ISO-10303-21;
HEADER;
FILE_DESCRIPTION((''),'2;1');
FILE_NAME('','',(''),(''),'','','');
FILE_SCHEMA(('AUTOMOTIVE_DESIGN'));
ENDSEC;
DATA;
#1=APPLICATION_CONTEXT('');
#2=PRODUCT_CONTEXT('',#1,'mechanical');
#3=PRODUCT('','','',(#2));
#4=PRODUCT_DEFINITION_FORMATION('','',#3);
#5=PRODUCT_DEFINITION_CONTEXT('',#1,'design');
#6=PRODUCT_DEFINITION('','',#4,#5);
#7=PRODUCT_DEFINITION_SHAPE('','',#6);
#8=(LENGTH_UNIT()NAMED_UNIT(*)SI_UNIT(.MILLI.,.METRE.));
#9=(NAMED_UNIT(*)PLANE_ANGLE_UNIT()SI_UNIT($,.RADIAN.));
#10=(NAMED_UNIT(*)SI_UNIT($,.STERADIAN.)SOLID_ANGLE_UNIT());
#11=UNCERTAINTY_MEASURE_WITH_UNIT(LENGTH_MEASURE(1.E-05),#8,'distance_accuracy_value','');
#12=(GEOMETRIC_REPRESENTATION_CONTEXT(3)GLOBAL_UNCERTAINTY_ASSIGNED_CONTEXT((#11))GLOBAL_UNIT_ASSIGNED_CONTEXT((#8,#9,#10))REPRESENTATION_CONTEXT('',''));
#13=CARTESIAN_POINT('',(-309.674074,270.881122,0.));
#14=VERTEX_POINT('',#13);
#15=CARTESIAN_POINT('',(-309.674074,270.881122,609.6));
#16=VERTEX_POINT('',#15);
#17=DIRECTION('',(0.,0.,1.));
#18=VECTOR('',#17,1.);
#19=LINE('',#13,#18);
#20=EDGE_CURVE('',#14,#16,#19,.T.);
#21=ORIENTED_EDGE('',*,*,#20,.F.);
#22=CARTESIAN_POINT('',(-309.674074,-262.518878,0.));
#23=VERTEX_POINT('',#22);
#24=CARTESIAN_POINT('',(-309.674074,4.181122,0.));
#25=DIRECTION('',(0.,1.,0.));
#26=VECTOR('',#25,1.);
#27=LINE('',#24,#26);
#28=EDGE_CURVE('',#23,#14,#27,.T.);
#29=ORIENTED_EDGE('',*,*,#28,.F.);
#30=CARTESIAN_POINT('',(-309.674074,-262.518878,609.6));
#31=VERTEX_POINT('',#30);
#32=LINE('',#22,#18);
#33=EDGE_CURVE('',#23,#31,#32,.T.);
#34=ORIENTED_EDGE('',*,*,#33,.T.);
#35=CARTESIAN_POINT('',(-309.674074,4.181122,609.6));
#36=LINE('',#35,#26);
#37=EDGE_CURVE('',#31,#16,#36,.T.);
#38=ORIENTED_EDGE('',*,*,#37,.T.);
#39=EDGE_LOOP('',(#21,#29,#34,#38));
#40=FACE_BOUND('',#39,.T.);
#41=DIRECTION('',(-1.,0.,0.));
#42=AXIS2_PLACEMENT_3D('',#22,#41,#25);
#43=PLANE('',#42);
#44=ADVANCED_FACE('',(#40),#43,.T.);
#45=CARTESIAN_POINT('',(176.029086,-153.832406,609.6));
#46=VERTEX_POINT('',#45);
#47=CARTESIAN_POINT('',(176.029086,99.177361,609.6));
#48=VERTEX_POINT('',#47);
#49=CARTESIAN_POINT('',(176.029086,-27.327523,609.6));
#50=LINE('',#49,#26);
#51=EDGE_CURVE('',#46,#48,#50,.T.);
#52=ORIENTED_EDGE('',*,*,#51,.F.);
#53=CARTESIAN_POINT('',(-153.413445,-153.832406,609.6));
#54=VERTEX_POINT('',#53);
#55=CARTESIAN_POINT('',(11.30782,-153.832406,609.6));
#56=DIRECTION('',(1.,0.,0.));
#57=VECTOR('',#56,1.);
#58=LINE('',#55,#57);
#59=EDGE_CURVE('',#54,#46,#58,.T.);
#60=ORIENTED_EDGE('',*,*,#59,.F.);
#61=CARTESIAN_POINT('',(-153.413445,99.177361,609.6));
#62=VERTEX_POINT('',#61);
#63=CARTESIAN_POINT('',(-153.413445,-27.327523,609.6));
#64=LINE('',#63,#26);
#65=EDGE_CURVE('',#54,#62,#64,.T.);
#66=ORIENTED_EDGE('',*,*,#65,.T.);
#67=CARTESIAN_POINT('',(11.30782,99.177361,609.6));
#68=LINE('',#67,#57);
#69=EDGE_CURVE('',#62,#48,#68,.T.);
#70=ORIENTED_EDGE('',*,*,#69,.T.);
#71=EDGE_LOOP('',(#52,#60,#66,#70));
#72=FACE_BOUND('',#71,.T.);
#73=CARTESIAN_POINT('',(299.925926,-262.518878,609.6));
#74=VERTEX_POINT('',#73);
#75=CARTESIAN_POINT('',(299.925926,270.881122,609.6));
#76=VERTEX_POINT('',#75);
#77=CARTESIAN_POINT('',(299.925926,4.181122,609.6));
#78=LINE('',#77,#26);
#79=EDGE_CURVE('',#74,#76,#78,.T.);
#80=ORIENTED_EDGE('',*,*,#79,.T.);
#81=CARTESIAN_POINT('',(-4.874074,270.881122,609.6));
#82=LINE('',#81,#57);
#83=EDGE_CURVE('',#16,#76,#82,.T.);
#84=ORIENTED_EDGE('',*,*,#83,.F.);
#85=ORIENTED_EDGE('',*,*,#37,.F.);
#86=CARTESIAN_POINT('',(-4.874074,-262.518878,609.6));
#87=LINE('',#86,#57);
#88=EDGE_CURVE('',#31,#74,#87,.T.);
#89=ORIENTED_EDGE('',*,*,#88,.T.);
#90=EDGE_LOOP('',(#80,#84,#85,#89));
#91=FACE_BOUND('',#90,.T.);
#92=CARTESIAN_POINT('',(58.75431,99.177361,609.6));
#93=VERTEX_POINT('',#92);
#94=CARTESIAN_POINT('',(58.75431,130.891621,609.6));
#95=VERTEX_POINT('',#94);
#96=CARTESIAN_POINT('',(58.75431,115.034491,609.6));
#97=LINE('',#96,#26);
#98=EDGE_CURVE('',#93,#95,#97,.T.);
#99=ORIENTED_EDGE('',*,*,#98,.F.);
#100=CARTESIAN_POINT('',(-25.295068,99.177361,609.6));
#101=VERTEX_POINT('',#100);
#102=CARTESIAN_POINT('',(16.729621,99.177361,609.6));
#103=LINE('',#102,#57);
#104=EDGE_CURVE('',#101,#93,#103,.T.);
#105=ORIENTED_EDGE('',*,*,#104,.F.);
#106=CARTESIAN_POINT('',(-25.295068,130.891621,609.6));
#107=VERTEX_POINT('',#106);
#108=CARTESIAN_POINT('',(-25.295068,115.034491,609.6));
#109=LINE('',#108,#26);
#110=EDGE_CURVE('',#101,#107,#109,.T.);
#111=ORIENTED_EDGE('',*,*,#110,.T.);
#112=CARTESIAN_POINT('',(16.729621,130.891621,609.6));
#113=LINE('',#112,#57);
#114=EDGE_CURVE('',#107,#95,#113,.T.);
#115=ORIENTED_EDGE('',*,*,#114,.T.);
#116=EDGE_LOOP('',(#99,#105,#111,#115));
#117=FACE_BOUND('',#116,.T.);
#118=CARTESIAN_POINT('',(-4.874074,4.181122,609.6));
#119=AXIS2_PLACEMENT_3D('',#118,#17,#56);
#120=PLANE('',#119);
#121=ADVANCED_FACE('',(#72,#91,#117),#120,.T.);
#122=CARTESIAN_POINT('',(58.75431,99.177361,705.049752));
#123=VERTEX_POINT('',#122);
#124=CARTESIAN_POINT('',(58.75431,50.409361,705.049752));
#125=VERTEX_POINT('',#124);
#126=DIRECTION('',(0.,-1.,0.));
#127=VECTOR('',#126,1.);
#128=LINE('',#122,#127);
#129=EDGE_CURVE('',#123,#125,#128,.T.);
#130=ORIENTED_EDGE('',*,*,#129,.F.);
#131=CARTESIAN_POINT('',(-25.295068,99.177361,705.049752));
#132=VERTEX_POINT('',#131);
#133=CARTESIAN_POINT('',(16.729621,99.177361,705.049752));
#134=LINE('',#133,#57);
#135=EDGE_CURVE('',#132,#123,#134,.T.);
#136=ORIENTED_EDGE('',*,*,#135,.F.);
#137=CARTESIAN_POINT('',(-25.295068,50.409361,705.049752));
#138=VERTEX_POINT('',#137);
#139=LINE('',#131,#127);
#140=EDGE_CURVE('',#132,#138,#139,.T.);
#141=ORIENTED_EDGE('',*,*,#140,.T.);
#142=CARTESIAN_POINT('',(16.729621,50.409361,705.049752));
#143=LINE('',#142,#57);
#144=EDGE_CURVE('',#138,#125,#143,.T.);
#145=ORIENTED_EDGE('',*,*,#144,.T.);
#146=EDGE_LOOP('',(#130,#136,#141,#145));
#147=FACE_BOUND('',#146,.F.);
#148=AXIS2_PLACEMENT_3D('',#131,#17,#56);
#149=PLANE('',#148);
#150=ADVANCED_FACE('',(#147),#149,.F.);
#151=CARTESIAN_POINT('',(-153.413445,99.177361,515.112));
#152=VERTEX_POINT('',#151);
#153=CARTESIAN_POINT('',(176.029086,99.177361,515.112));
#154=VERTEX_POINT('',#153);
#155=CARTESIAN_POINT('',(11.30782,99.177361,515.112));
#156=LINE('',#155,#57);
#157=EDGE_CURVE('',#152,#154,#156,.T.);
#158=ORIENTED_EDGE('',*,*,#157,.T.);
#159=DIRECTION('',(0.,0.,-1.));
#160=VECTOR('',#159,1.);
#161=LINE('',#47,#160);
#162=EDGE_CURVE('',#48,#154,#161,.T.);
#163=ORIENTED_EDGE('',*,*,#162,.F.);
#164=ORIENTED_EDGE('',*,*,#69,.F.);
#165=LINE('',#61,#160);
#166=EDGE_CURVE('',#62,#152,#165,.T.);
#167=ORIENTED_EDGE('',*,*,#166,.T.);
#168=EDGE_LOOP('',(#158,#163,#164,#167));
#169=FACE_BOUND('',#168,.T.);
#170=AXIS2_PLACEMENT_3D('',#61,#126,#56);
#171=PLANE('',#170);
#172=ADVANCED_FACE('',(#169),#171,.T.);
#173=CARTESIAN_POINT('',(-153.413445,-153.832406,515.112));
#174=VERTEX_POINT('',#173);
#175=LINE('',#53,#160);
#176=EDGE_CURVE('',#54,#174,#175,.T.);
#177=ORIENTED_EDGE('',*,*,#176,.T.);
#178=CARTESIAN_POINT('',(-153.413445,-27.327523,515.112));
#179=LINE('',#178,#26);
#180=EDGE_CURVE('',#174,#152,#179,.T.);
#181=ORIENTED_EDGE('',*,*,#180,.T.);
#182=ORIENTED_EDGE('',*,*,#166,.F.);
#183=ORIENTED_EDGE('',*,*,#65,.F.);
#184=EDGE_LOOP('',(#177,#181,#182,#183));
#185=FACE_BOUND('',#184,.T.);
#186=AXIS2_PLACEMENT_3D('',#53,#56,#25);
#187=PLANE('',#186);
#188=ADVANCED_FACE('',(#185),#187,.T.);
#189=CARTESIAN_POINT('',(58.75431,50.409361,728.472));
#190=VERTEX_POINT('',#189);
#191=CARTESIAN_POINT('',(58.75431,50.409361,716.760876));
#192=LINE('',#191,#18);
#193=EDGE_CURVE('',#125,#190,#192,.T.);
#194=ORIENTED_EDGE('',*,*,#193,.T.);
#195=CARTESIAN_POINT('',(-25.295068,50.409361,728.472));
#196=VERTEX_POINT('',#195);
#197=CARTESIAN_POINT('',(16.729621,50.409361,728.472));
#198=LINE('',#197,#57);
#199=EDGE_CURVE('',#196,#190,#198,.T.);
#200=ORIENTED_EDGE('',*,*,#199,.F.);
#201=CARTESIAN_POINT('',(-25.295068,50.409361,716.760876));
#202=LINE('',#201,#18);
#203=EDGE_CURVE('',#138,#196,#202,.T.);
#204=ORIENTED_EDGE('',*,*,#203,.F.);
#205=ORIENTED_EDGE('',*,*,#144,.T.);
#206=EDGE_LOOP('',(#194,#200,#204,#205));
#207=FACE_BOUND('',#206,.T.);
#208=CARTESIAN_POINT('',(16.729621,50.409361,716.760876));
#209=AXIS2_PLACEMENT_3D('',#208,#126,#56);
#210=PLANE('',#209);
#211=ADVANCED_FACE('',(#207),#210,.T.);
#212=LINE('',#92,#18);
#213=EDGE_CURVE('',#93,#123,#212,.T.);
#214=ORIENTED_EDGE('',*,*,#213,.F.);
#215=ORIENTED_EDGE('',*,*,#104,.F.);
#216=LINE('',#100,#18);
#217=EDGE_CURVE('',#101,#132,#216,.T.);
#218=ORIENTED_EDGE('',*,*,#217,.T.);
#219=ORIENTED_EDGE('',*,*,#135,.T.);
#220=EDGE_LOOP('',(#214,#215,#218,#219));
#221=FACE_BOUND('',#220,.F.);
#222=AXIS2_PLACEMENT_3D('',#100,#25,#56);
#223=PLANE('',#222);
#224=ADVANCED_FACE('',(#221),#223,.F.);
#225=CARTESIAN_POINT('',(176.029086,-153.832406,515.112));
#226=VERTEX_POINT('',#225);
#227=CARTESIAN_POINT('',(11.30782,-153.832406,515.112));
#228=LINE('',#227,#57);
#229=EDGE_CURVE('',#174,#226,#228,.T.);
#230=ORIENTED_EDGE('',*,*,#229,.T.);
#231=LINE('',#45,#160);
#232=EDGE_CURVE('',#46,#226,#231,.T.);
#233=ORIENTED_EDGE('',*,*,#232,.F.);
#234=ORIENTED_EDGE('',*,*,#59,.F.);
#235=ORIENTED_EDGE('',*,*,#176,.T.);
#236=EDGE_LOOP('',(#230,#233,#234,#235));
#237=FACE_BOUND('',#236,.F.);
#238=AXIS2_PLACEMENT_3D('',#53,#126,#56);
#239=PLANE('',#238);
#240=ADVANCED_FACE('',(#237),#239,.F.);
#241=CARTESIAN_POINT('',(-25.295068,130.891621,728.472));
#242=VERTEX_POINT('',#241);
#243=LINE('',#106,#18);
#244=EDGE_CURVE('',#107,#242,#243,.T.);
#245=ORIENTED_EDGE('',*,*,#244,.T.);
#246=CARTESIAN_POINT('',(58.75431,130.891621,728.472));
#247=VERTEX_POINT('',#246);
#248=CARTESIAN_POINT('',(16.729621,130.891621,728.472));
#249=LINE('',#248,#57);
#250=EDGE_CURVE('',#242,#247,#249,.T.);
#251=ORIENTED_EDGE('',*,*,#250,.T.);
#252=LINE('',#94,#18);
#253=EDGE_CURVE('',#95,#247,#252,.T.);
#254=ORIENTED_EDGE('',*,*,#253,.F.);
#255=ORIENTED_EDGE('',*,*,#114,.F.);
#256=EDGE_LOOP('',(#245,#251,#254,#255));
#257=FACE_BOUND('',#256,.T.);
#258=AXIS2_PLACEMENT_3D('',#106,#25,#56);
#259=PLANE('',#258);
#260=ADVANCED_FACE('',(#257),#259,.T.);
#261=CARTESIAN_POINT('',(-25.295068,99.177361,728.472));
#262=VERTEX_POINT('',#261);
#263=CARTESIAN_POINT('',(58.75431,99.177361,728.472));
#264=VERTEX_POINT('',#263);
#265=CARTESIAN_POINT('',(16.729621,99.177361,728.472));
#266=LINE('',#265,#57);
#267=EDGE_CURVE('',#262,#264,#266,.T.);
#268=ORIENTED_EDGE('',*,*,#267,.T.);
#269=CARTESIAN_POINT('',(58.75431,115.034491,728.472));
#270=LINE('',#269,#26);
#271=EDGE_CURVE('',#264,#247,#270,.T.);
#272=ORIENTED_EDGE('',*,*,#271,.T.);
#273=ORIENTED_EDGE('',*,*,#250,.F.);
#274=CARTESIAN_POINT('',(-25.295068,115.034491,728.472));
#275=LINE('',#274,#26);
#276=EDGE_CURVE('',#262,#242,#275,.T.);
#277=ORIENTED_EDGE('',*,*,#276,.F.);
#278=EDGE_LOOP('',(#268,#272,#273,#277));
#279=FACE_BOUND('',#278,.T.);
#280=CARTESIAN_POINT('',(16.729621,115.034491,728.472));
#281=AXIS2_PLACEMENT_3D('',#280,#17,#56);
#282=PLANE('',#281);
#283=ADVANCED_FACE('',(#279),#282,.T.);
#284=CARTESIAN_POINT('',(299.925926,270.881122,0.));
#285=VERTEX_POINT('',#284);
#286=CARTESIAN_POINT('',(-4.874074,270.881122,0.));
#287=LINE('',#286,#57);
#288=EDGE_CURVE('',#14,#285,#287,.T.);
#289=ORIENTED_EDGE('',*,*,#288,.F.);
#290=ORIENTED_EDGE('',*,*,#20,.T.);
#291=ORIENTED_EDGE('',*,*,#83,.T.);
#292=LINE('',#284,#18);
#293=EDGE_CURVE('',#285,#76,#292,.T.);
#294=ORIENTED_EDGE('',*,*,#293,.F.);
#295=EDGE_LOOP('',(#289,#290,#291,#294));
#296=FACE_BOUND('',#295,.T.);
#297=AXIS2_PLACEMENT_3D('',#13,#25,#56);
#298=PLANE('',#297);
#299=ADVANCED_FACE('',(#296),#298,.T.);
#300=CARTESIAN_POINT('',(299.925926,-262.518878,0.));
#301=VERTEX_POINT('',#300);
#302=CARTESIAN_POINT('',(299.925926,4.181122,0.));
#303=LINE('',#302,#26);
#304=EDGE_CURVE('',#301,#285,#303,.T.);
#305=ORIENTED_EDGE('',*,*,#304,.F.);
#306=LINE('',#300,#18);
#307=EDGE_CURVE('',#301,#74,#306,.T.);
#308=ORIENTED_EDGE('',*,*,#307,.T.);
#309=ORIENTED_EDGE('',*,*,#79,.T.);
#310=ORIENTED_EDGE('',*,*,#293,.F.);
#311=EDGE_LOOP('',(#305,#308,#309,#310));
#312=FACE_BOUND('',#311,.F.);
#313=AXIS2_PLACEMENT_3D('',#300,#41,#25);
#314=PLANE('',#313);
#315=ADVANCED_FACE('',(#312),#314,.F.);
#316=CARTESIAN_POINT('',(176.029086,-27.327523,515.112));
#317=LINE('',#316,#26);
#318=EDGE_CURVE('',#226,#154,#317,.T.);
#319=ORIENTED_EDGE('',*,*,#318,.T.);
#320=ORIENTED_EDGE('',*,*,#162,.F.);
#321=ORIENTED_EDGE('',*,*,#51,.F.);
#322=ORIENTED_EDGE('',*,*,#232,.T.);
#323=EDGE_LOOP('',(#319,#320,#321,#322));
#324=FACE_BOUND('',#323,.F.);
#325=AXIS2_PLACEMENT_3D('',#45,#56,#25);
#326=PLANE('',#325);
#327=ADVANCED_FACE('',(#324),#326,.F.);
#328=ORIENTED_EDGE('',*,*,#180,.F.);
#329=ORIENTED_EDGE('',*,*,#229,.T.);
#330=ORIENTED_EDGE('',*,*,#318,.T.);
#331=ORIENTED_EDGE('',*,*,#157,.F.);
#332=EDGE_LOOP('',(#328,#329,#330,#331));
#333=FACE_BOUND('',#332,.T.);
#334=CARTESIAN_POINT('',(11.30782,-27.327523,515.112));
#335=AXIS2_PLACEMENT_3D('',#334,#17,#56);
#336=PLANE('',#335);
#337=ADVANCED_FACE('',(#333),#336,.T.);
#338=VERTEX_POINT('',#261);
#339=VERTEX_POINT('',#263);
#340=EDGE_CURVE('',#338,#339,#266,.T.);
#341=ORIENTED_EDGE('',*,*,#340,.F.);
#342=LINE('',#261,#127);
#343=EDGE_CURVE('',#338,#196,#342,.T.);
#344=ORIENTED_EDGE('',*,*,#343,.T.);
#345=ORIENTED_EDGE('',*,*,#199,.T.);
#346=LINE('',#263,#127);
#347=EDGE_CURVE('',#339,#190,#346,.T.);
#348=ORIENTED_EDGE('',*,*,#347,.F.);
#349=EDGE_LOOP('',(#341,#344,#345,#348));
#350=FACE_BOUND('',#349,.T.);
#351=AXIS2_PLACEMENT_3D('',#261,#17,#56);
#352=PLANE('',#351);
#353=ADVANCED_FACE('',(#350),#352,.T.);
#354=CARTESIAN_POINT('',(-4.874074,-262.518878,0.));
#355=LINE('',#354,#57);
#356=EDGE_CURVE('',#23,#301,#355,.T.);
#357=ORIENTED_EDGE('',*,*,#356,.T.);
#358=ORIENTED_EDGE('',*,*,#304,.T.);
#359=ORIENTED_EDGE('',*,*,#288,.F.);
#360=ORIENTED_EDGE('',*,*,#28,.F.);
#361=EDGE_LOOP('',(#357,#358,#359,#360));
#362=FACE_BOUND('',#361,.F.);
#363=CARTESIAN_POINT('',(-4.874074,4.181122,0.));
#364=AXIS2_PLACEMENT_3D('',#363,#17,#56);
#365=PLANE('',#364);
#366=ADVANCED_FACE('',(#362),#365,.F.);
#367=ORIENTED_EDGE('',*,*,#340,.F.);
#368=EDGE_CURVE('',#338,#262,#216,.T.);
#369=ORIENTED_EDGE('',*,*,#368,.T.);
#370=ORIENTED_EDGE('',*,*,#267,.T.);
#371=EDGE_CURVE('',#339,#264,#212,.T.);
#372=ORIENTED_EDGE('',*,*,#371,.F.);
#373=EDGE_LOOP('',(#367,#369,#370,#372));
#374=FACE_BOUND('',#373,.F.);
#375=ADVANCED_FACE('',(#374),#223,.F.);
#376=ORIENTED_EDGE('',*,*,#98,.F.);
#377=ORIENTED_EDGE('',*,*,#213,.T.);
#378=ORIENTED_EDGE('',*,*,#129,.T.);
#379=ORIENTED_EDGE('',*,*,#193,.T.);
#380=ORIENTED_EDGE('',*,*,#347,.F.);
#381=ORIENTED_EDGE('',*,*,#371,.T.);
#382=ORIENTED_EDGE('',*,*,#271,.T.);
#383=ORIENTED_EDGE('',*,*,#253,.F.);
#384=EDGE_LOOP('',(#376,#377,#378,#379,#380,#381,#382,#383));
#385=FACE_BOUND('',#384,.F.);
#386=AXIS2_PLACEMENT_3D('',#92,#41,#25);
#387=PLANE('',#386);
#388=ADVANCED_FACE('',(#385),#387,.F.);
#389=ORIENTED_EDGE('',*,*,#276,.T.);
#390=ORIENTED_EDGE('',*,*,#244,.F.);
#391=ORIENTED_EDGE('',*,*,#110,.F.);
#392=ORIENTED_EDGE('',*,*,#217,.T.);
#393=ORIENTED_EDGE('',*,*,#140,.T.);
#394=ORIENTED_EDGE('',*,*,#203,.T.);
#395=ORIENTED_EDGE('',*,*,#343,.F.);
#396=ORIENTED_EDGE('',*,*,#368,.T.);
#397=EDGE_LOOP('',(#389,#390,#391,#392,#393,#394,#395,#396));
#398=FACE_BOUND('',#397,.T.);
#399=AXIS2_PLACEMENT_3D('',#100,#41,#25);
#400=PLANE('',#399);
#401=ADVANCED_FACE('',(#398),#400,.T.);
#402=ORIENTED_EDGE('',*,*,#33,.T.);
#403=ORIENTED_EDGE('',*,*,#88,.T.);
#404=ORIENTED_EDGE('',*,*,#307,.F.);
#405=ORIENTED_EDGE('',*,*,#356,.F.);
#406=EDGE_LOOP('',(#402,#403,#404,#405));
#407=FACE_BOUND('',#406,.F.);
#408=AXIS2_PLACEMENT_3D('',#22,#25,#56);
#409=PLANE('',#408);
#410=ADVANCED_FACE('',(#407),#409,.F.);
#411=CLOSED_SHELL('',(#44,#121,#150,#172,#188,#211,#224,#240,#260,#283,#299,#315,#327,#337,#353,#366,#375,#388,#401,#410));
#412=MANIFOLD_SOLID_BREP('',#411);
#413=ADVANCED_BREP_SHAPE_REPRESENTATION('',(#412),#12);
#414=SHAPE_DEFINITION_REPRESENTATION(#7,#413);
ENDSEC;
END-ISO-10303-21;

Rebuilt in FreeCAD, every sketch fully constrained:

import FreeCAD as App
import Part
import Sketcher
from FreeCAD import Vector
Q = App.Units.Quantity

doc = App.newDocument("Part")
params = doc.addObject("Spreadsheet::Sheet", "Params")
for row, (alias, value) in enumerate([
    ("sketch1_width", "24 in"),
    ("sketch1_height", "21 in"),
    ("pad1_length", "24 in"),
    ("pocket1_length", "3.72 in"),
    ("pad2_length", "4.68 in"),
    ("pad3_length", "1.92 in"),
], start=1):
    params.set(f"A{row}", alias)
    params.set(f"B{row}", "=" + value)
    params.setAlias(f"B{row}", alias)

body = doc.addObject("PartDesign::Body", "Body")

sketch1 = body.newObject("Sketcher::SketchObject", "Sketch")
sketch1.AttachmentSupport = (doc.getObject("XY_Plane"), [""])
sketch1.MapMode = "FlatFace"
sketch1.addGeometry(Part.LineSegment(Vector(-309.674074, 270.881122, 0), Vector(-309.674074, -262.518878, 0)), False)
sketch1.addGeometry(Part.LineSegment(Vector(-309.674074, -262.518878, 0), Vector(299.925926, -262.518878, 0)), False)
sketch1.addGeometry(Part.LineSegment(Vector(299.925926, -262.518878, 0), Vector(299.925926, 270.881122, 0)), False)
sketch1.addGeometry(Part.LineSegment(Vector(299.925926, 270.881122, 0), Vector(-309.674074, 270.881122, 0)), False)
sketch1.addConstraint(Sketcher.Constraint("Coincident", 0, 2, 1, 1))
sketch1.addConstraint(Sketcher.Constraint("Coincident", 1, 2, 2, 1))
sketch1.addConstraint(Sketcher.Constraint("Coincident", 2, 2, 3, 1))
sketch1.addConstraint(Sketcher.Constraint("Coincident", 3, 2, 0, 1))
sketch1.addConstraint(Sketcher.Constraint("Vertical", 0))
sketch1.addConstraint(Sketcher.Constraint("Horizontal", 1))
sketch1.addConstraint(Sketcher.Constraint("Vertical", 2))
sketch1.addConstraint(Sketcher.Constraint("Horizontal", 3))
sketch1.addConstraint(Sketcher.Constraint("DistanceX", 1, 1, 1, 2, Q("24 in")))
sketch1.addConstraint(Sketcher.Constraint("DistanceY", 0, 2, 0, 1, Q("21 in")))
sketch1.addConstraint(Sketcher.Constraint("DistanceY", -1, 1, 2, 2, 270.881122))
sketch1.addConstraint(Sketcher.Constraint("DistanceX", 0, 2, -1, 1, 309.674074))
sketch1.setExpression("Constraints[8]", "Params.sketch1_width")
sketch1.setExpression("Constraints[9]", "Params.sketch1_height")
pad1 = body.newObject("PartDesign::Pad", "Pad")
pad1.Profile = sketch1
pad1.setExpression("Length", "Params.pad1_length")

sketch2 = body.newObject("Sketcher::SketchObject", "Sketch001")
sketch2.AttachmentSupport = (doc.getObject("XY_Plane"), [""])
sketch2.MapMode = "FlatFace"
sketch2.AttachmentOffset = App.Placement(Vector(0, 0, 24 * 25.4), App.Rotation())
sketch2.addGeometry(Part.LineSegment(Vector(-153.413445, 99.177361, 0), Vector(-153.413445, -153.832406, 0)), False)
sketch2.addGeometry(Part.LineSegment(Vector(-153.413445, -153.832406, 0), Vector(176.029086, -153.832406, 0)), False)
sketch2.addGeometry(Part.LineSegment(Vector(176.029086, -153.832406, 0), Vector(176.029086, 99.177361, 0)), False)
sketch2.addGeometry(Part.LineSegment(Vector(176.029086, 99.177361, 0), Vector(-153.413445, 99.177361, 0)), False)
sketch2.addConstraint(Sketcher.Constraint("Coincident", 0, 2, 1, 1))
sketch2.addConstraint(Sketcher.Constraint("Coincident", 1, 2, 2, 1))
sketch2.addConstraint(Sketcher.Constraint("Coincident", 2, 2, 3, 1))
sketch2.addConstraint(Sketcher.Constraint("Coincident", 3, 2, 0, 1))
sketch2.addConstraint(Sketcher.Constraint("Vertical", 0))
sketch2.addConstraint(Sketcher.Constraint("Horizontal", 1))
sketch2.addConstraint(Sketcher.Constraint("Vertical", 2))
sketch2.addConstraint(Sketcher.Constraint("Horizontal", 3))
sketch2.addConstraint(Sketcher.Constraint("DistanceX", 1, 1, 1, 2, 329.442531))
sketch2.addConstraint(Sketcher.Constraint("DistanceY", 0, 2, 0, 1, 253.009767))
sketch2.addConstraint(Sketcher.Constraint("DistanceY", -1, 1, 2, 2, 99.177361))
sketch2.addConstraint(Sketcher.Constraint("DistanceX", 0, 2, -1, 1, 153.413445))
pocket1 = body.newObject("PartDesign::Pocket", "Pocket")
pocket1.Profile = sketch2
pocket1.setExpression("Length", "Params.pocket1_length")

sketch3 = body.newObject("Sketcher::SketchObject", "Sketch002")
sketch3.AttachmentSupport = (doc.getObject("XY_Plane"), [""])
sketch3.MapMode = "FlatFace"
sketch3.AttachmentOffset = App.Placement(Vector(0, 0, 24 * 25.4), App.Rotation())
sketch3.addGeometry(Part.LineSegment(Vector(-25.295068, 130.891621, 0), Vector(-25.295068, 99.177361, 0)), False)
sketch3.addGeometry(Part.LineSegment(Vector(-25.295068, 99.177361, 0), Vector(58.75431, 99.177361, 0)), False)
sketch3.addGeometry(Part.LineSegment(Vector(58.75431, 99.177361, 0), Vector(58.75431, 130.891621, 0)), False)
sketch3.addGeometry(Part.LineSegment(Vector(58.75431, 130.891621, 0), Vector(-25.295068, 130.891621, 0)), False)
sketch3.addConstraint(Sketcher.Constraint("Coincident", 0, 2, 1, 1))
sketch3.addConstraint(Sketcher.Constraint("Coincident", 1, 2, 2, 1))
sketch3.addConstraint(Sketcher.Constraint("Coincident", 2, 2, 3, 1))
sketch3.addConstraint(Sketcher.Constraint("Coincident", 3, 2, 0, 1))
sketch3.addConstraint(Sketcher.Constraint("Vertical", 0))
sketch3.addConstraint(Sketcher.Constraint("Horizontal", 1))
sketch3.addConstraint(Sketcher.Constraint("Vertical", 2))
sketch3.addConstraint(Sketcher.Constraint("Horizontal", 3))
sketch3.addConstraint(Sketcher.Constraint("DistanceY", 0, 2, 0, 1, 31.71426))
sketch3.addConstraint(Sketcher.Constraint("DistanceX", 1, 1, 1, 2, 84.049378))
sketch3.addConstraint(Sketcher.Constraint("DistanceX", 0, 2, -1, 1, 25.295068))
sketch3.addConstraint(Sketcher.Constraint("DistanceY", -1, 1, 0, 2, 99.177361))
pad2 = body.newObject("PartDesign::Pad", "Pad001")
pad2.Profile = sketch3
pad2.setExpression("Length", "Params.pad2_length")

sketch4 = body.newObject("Sketcher::SketchObject", "Sketch003")
sketch4.AttachmentSupport = (doc.getObject("XZ_Plane"), [""])
sketch4.MapMode = "FlatFace"
sketch4.AttachmentOffset = App.Placement(Vector(0, 0, -99.177361), App.Rotation())
sketch4.addGeometry(Part.LineSegment(Vector(-25.295068, 728.472, 0), Vector(-25.295068, 705.049752, 0)), False)
sketch4.addGeometry(Part.LineSegment(Vector(-25.295068, 705.049752, 0), Vector(58.75431, 705.049752, 0)), False)
sketch4.addGeometry(Part.LineSegment(Vector(58.75431, 705.049752, 0), Vector(58.75431, 728.472, 0)), False)
sketch4.addGeometry(Part.LineSegment(Vector(58.75431, 728.472, 0), Vector(-25.295068, 728.472, 0)), False)
sketch4.addConstraint(Sketcher.Constraint("Coincident", 0, 2, 1, 1))
sketch4.addConstraint(Sketcher.Constraint("Coincident", 1, 2, 2, 1))
sketch4.addConstraint(Sketcher.Constraint("Coincident", 2, 2, 3, 1))
sketch4.addConstraint(Sketcher.Constraint("Coincident", 3, 2, 0, 1))
sketch4.addConstraint(Sketcher.Constraint("Vertical", 0))
sketch4.addConstraint(Sketcher.Constraint("Horizontal", 1))
sketch4.addConstraint(Sketcher.Constraint("Vertical", 2))
sketch4.addConstraint(Sketcher.Constraint("Horizontal", 3))
sketch4.addConstraint(Sketcher.Constraint("DistanceY", -1, 1, 2, 2, Q("28.68 in")))
sketch4.addConstraint(Sketcher.Constraint("DistanceX", 1, 1, 1, 2, 84.049378))
sketch4.addConstraint(Sketcher.Constraint("DistanceY", 0, 2, 0, 1, 23.422247))
sketch4.addConstraint(Sketcher.Constraint("DistanceX", 0, 2, -1, 1, 25.295068))
pad3 = body.newObject("PartDesign::Pad", "Pad002")
pad3.Profile = sketch4
pad3.setExpression("Length", "Params.pad3_length")

doc.recompute()
